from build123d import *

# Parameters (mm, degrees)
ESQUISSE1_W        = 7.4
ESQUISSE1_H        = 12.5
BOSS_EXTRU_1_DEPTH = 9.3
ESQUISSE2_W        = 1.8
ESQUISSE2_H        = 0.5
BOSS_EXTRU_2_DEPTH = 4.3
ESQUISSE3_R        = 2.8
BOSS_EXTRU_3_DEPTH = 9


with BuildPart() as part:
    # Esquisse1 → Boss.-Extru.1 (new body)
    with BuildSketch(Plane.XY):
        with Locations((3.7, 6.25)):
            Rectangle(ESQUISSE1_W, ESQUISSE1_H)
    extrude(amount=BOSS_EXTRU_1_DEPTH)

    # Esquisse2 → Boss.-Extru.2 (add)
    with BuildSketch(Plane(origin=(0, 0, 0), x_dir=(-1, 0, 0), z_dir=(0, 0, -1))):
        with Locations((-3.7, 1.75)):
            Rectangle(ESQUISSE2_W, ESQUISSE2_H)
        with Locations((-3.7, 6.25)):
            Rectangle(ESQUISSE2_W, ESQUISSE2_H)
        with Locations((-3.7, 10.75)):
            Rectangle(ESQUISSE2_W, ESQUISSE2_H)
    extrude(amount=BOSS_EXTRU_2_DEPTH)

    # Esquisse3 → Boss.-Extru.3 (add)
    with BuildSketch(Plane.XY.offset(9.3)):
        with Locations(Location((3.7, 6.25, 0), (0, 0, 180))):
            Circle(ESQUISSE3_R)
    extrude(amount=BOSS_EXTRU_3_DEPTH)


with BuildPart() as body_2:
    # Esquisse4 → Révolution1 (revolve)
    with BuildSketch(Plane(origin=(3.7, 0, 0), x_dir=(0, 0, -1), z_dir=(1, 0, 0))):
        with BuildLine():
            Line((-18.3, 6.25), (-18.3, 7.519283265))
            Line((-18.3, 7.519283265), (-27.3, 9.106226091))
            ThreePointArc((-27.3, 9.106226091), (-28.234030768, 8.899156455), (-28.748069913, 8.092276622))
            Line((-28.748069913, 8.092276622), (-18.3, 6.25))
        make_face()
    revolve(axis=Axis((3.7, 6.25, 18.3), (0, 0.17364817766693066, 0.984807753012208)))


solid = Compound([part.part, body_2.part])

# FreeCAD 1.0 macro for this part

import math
import FreeCAD as App
import Part
import Sketcher
Q = App.Units.Quantity

doc = App.newDocument("Part")
params = doc.addObject("Spreadsheet::Sheet", "Params")
for row, (alias, value) in enumerate([
    ("sketch1_width", "7.4 mm"),
    ("sketch1_height", "12.5 mm"),
    ("pad1_length", "9.3 mm"),
    ("sketch2_width", "1.8 mm"),
    ("sketch2_height", "0.5 mm"),
    ("pad2_length", "4.3 mm"),
    ("sketch3_diameter", "5.6 mm"),
    ("pad3_length", "9 mm"),
    ("sketch4_radius", "1.25 mm"),
    ("revolution_angle", "360 deg"),
], start=1):
    params.set(f"A{row}", alias)
    params.set(f"B{row}", "=" + value)
    params.setAlias(f"B{row}", alias)

body = doc.addObject("PartDesign::Body", "Body")

# Sketch on XY plane
sketch1 = body.newObject("Sketcher::SketchObject", "Sketch")
sketch1.AttachmentSupport = (doc.getObject("XY_Plane"), [""])
sketch1.MapMode = "FlatFace"
sketch1.addGeometry([
    Part.LineSegment(App.Vector(0, 12, 0), App.Vector(0, 0, 0)),
    Part.LineSegment(App.Vector(0, 0, 0), App.Vector(7, 0, 0)),
    Part.LineSegment(App.Vector(7, 0, 0), App.Vector(7, 12, 0)),
    Part.LineSegment(App.Vector(7, 12, 0), App.Vector(0, 12, 0)),
], False)
sketch1.addConstraint([
    Sketcher.Constraint("Coincident", 0, 2, 1, 1),
    Sketcher.Constraint("Coincident", 1, 2, 2, 1),
    Sketcher.Constraint("Coincident", 2, 2, 3, 1),
    Sketcher.Constraint("Coincident", 3, 2, 0, 1),
    Sketcher.Constraint("Vertical", 0),
    Sketcher.Constraint("Horizontal", 1),
    Sketcher.Constraint("Vertical", 2),
    Sketcher.Constraint("Horizontal", 3),
    Sketcher.Constraint("Coincident", 0, 2, -1, 1),
    Sketcher.Constraint("DistanceX", 1, 1, 1, 2, 7.4),
    Sketcher.Constraint("DistanceY", 0, 2, 0, 1, 12.5),
])
sketch1.setExpression("Constraints[9]", "Params.sketch1_width")
sketch1.setExpression("Constraints[10]", "Params.sketch1_height")
pad1 = body.newObject("PartDesign::Pad", "Pad")
pad1.Profile = sketch1
pad1.setExpression("Length", "Params.pad1_length")

# Sketch on XY plane
sketch2 = body.newObject("Sketcher::SketchObject", "Sketch001")
sketch2.AttachmentSupport = (doc.getObject("XY_Plane"), [""])
sketch2.MapMode = "FlatFace"
sketch2.addGeometry([
    Part.LineSegment(App.Vector(4.6, 2, 0), App.Vector(4.6, 1.5, 0)),  # 0
    Part.LineSegment(App.Vector(4.6, 1.5, 0), App.Vector(2.8, 1.5, 0)),  # 1
    Part.LineSegment(App.Vector(2.8, 1.5, 0), App.Vector(2.8, 2, 0)),  # 2
    Part.LineSegment(App.Vector(2.8, 2, 0), App.Vector(4.6, 2, 0)),  # 3
    Part.LineSegment(App.Vector(4.6, 6.5, 0), App.Vector(4.6, 6, 0)),  # 4
    Part.LineSegment(App.Vector(4.6, 6, 0), App.Vector(2.8, 6, 0)),  # 5
    Part.LineSegment(App.Vector(2.8, 6, 0), App.Vector(2.8, 6.5, 0)),  # 6
    Part.LineSegment(App.Vector(2.8, 6.5, 0), App.Vector(4.6, 6.5, 0)),  # 7
    Part.LineSegment(App.Vector(4.6, 11, 0), App.Vector(4.6, 10.5, 0)),  # 8
    Part.LineSegment(App.Vector(4.6, 10.5, 0), App.Vector(2.8, 10.5, 0)),  # 9
    Part.LineSegment(App.Vector(2.8, 10.5, 0), App.Vector(2.8, 11, 0)),  # 10
    Part.LineSegment(App.Vector(2.8, 11, 0), App.Vector(4.6, 11, 0)),  # 11
], False)
sketch2.addConstraint([
    Sketcher.Constraint("Coincident", 0, 2, 1, 1),
    Sketcher.Constraint("Coincident", 1, 2, 2, 1),
    Sketcher.Constraint("Coincident", 2, 2, 3, 1),
    Sketcher.Constraint("Coincident", 3, 2, 0, 1),
    Sketcher.Constraint("Coincident", 4, 2, 5, 1),
    Sketcher.Constraint("Coincident", 5, 2, 6, 1),
    Sketcher.Constraint("Coincident", 6, 2, 7, 1),
    Sketcher.Constraint("Coincident", 7, 2, 4, 1),
    Sketcher.Constraint("Coincident", 8, 2, 9, 1),
    Sketcher.Constraint("Coincident", 9, 2, 10, 1),
    Sketcher.Constraint("Coincident", 10, 2, 11, 1),
    Sketcher.Constraint("Coincident", 11, 2, 8, 1),
    Sketcher.Constraint("Vertical", 0),
    Sketcher.Constraint("Horizontal", 1),
    Sketcher.Constraint("Vertical", 2),
    Sketcher.Constraint("Horizontal", 3),
    Sketcher.Constraint("Vertical", 4),
    Sketcher.Constraint("Horizontal", 5),
    Sketcher.Constraint("Vertical", 6),
    Sketcher.Constraint("Horizontal", 7),
    Sketcher.Constraint("Vertical", 8),
    Sketcher.Constraint("Horizontal", 9),
    Sketcher.Constraint("Vertical", 10),
    Sketcher.Constraint("Horizontal", 11),
    Sketcher.Constraint("Vertical", 3, 2, 4, 2),
    Sketcher.Constraint("Vertical", 2, 2, 5, 2),
    Sketcher.Constraint("Vertical", 7, 2, 8, 2),
    Sketcher.Constraint("Vertical", 6, 2, 9, 2),
    Sketcher.Constraint("Equal", 2, 4),
    Sketcher.Constraint("Equal", 6, 8),
    Sketcher.Constraint("DistanceX", 1, 2, 1, 1, 1.8),
    Sketcher.Constraint("DistanceY", 0, 2, 0, 1, 0.5),
    Sketcher.Constraint("DistanceY", -1, 1, 2, 2, 2.0),
    Sketcher.Constraint("DistanceY", -1, 1, 4, 2, 6.0),
    Sketcher.Constraint("DistanceY", -1, 1, 10, 2, 11.0),
    Sketcher.Constraint("DistanceX", -1, 1, 0, 2, 4.6),
])
sketch2.setExpression("Constraints[30]", "Params.sketch2_width")
sketch2.setExpression("Constraints[31]", "Params.sketch2_height")
pad2 = body.newObject("PartDesign::Pad", "Pad001")
pad2.Profile = sketch2
pad2.setExpression("Length", "Params.pad2_length")
pad2.Reversed = True

# Sketch on XY plane
sketch3 = body.newObject("Sketcher::SketchObject", "Sketch002")
sketch3.AttachmentSupport = (doc.getObject("XY_Plane"), [""])
sketch3.MapMode = "FlatFace"
sketch3.AttachmentOffset = App.Placement(App.Vector(0, 0, 9.3), App.Rotation())
sketch3.addGeometry(Part.Circle(App.Vector(3.7, 6.2, 0), App.Vector(0, 0, 1), 2.8), False)
sketch3.addConstraint([
    Sketcher.Constraint("Diameter", 0, 5.6),
    Sketcher.Constraint("DistanceX", -1, 1, 0, 3, 3.7),
    Sketcher.Constraint("DistanceY", -1, 1, 0, 3, 6.25),
])
sketch3.setExpression("Constraints[0]", "Params.sketch3_diameter")
pad3 = body.newObject("PartDesign::Pad", "Pad002")
pad3.Profile = sketch3
pad3.setExpression("Length", "Params.pad3_length")
body2 = doc.addObject("PartDesign::Body", "Body001")

# Sketch on YZ plane
sketch4 = body2.newObject("Sketcher::SketchObject", "Sketch003")
sketch4.AttachmentSupport = (doc.getObject("YZ_Plane001"), [""])
sketch4.MapMode = "FlatFace"
sketch4.AttachmentOffset = App.Placement(App.Vector(0, 0, 3.7), App.Rotation())
sketch4.addGeometry([
    Part.LineSegment(App.Vector(6.2, 18.3, 0), App.Vector(7.5, 18.3, 0)),
    Part.LineSegment(App.Vector(7.5, 18.3, 0), App.Vector(9.1, 27.3, 0)),
    Part.ArcOfCircle(Part.Circle(App.Vector(7.9, 27.5, 0), App.Vector(0, 0, 1), 1.2), math.radians(-10), math.radians(80)),
    Part.LineSegment(App.Vector(8.1, 28.7, 0), App.Vector(6.2, 18.3, 0)),
], False)
sketch4.addGeometry(Part.LineSegment(App.Vector(6.2, 18.3, 0), App.Vector(8.1, 28.7, 0)), True)  # axis
sketch4.addConstraint([
    Sketcher.Constraint("Coincident", 0, 2, 1, 1),
    Sketcher.Constraint("Tangent", 1, 2, 2, 1),
    Sketcher.Constraint("Coincident", 2, 2, 3, 1),
    Sketcher.Constraint("Coincident", 3, 2, 0, 1),
    Sketcher.Constraint("Horizontal", 0),
    Sketcher.Constraint("Coincident", 4, 1, 3, 2),
    Sketcher.Constraint("Coincident", 4, 2, 2, 2),
    Sketcher.Constraint("Parallel", 1, 3),
    Sketcher.Constraint("Angle", 1, Q("80 deg")),
    Sketcher.Constraint("Radius", 2, 1.25),
    Sketcher.Constraint("DistanceY", 0, 2, 1, 2, 9.0),
    Sketcher.Constraint("DistanceY", -1, 1, 0, 2, 18.3),
    Sketcher.Constraint("DistanceX", -1, 1, 3, 2, 6.25),
    Sketcher.Constraint("Distance", 3, 10.609248),
])
sketch4.setExpression("Constraints[9]", "Params.sketch4_radius")
revolution = body2.newObject("PartDesign::Revolution", "Revolution")
revolution.Profile = sketch4
revolution.ReferenceAxis = (sketch4, ["Axis0"])
revolution.setExpression("Angle", "Params.revolution_angle")

doc.recompute()
